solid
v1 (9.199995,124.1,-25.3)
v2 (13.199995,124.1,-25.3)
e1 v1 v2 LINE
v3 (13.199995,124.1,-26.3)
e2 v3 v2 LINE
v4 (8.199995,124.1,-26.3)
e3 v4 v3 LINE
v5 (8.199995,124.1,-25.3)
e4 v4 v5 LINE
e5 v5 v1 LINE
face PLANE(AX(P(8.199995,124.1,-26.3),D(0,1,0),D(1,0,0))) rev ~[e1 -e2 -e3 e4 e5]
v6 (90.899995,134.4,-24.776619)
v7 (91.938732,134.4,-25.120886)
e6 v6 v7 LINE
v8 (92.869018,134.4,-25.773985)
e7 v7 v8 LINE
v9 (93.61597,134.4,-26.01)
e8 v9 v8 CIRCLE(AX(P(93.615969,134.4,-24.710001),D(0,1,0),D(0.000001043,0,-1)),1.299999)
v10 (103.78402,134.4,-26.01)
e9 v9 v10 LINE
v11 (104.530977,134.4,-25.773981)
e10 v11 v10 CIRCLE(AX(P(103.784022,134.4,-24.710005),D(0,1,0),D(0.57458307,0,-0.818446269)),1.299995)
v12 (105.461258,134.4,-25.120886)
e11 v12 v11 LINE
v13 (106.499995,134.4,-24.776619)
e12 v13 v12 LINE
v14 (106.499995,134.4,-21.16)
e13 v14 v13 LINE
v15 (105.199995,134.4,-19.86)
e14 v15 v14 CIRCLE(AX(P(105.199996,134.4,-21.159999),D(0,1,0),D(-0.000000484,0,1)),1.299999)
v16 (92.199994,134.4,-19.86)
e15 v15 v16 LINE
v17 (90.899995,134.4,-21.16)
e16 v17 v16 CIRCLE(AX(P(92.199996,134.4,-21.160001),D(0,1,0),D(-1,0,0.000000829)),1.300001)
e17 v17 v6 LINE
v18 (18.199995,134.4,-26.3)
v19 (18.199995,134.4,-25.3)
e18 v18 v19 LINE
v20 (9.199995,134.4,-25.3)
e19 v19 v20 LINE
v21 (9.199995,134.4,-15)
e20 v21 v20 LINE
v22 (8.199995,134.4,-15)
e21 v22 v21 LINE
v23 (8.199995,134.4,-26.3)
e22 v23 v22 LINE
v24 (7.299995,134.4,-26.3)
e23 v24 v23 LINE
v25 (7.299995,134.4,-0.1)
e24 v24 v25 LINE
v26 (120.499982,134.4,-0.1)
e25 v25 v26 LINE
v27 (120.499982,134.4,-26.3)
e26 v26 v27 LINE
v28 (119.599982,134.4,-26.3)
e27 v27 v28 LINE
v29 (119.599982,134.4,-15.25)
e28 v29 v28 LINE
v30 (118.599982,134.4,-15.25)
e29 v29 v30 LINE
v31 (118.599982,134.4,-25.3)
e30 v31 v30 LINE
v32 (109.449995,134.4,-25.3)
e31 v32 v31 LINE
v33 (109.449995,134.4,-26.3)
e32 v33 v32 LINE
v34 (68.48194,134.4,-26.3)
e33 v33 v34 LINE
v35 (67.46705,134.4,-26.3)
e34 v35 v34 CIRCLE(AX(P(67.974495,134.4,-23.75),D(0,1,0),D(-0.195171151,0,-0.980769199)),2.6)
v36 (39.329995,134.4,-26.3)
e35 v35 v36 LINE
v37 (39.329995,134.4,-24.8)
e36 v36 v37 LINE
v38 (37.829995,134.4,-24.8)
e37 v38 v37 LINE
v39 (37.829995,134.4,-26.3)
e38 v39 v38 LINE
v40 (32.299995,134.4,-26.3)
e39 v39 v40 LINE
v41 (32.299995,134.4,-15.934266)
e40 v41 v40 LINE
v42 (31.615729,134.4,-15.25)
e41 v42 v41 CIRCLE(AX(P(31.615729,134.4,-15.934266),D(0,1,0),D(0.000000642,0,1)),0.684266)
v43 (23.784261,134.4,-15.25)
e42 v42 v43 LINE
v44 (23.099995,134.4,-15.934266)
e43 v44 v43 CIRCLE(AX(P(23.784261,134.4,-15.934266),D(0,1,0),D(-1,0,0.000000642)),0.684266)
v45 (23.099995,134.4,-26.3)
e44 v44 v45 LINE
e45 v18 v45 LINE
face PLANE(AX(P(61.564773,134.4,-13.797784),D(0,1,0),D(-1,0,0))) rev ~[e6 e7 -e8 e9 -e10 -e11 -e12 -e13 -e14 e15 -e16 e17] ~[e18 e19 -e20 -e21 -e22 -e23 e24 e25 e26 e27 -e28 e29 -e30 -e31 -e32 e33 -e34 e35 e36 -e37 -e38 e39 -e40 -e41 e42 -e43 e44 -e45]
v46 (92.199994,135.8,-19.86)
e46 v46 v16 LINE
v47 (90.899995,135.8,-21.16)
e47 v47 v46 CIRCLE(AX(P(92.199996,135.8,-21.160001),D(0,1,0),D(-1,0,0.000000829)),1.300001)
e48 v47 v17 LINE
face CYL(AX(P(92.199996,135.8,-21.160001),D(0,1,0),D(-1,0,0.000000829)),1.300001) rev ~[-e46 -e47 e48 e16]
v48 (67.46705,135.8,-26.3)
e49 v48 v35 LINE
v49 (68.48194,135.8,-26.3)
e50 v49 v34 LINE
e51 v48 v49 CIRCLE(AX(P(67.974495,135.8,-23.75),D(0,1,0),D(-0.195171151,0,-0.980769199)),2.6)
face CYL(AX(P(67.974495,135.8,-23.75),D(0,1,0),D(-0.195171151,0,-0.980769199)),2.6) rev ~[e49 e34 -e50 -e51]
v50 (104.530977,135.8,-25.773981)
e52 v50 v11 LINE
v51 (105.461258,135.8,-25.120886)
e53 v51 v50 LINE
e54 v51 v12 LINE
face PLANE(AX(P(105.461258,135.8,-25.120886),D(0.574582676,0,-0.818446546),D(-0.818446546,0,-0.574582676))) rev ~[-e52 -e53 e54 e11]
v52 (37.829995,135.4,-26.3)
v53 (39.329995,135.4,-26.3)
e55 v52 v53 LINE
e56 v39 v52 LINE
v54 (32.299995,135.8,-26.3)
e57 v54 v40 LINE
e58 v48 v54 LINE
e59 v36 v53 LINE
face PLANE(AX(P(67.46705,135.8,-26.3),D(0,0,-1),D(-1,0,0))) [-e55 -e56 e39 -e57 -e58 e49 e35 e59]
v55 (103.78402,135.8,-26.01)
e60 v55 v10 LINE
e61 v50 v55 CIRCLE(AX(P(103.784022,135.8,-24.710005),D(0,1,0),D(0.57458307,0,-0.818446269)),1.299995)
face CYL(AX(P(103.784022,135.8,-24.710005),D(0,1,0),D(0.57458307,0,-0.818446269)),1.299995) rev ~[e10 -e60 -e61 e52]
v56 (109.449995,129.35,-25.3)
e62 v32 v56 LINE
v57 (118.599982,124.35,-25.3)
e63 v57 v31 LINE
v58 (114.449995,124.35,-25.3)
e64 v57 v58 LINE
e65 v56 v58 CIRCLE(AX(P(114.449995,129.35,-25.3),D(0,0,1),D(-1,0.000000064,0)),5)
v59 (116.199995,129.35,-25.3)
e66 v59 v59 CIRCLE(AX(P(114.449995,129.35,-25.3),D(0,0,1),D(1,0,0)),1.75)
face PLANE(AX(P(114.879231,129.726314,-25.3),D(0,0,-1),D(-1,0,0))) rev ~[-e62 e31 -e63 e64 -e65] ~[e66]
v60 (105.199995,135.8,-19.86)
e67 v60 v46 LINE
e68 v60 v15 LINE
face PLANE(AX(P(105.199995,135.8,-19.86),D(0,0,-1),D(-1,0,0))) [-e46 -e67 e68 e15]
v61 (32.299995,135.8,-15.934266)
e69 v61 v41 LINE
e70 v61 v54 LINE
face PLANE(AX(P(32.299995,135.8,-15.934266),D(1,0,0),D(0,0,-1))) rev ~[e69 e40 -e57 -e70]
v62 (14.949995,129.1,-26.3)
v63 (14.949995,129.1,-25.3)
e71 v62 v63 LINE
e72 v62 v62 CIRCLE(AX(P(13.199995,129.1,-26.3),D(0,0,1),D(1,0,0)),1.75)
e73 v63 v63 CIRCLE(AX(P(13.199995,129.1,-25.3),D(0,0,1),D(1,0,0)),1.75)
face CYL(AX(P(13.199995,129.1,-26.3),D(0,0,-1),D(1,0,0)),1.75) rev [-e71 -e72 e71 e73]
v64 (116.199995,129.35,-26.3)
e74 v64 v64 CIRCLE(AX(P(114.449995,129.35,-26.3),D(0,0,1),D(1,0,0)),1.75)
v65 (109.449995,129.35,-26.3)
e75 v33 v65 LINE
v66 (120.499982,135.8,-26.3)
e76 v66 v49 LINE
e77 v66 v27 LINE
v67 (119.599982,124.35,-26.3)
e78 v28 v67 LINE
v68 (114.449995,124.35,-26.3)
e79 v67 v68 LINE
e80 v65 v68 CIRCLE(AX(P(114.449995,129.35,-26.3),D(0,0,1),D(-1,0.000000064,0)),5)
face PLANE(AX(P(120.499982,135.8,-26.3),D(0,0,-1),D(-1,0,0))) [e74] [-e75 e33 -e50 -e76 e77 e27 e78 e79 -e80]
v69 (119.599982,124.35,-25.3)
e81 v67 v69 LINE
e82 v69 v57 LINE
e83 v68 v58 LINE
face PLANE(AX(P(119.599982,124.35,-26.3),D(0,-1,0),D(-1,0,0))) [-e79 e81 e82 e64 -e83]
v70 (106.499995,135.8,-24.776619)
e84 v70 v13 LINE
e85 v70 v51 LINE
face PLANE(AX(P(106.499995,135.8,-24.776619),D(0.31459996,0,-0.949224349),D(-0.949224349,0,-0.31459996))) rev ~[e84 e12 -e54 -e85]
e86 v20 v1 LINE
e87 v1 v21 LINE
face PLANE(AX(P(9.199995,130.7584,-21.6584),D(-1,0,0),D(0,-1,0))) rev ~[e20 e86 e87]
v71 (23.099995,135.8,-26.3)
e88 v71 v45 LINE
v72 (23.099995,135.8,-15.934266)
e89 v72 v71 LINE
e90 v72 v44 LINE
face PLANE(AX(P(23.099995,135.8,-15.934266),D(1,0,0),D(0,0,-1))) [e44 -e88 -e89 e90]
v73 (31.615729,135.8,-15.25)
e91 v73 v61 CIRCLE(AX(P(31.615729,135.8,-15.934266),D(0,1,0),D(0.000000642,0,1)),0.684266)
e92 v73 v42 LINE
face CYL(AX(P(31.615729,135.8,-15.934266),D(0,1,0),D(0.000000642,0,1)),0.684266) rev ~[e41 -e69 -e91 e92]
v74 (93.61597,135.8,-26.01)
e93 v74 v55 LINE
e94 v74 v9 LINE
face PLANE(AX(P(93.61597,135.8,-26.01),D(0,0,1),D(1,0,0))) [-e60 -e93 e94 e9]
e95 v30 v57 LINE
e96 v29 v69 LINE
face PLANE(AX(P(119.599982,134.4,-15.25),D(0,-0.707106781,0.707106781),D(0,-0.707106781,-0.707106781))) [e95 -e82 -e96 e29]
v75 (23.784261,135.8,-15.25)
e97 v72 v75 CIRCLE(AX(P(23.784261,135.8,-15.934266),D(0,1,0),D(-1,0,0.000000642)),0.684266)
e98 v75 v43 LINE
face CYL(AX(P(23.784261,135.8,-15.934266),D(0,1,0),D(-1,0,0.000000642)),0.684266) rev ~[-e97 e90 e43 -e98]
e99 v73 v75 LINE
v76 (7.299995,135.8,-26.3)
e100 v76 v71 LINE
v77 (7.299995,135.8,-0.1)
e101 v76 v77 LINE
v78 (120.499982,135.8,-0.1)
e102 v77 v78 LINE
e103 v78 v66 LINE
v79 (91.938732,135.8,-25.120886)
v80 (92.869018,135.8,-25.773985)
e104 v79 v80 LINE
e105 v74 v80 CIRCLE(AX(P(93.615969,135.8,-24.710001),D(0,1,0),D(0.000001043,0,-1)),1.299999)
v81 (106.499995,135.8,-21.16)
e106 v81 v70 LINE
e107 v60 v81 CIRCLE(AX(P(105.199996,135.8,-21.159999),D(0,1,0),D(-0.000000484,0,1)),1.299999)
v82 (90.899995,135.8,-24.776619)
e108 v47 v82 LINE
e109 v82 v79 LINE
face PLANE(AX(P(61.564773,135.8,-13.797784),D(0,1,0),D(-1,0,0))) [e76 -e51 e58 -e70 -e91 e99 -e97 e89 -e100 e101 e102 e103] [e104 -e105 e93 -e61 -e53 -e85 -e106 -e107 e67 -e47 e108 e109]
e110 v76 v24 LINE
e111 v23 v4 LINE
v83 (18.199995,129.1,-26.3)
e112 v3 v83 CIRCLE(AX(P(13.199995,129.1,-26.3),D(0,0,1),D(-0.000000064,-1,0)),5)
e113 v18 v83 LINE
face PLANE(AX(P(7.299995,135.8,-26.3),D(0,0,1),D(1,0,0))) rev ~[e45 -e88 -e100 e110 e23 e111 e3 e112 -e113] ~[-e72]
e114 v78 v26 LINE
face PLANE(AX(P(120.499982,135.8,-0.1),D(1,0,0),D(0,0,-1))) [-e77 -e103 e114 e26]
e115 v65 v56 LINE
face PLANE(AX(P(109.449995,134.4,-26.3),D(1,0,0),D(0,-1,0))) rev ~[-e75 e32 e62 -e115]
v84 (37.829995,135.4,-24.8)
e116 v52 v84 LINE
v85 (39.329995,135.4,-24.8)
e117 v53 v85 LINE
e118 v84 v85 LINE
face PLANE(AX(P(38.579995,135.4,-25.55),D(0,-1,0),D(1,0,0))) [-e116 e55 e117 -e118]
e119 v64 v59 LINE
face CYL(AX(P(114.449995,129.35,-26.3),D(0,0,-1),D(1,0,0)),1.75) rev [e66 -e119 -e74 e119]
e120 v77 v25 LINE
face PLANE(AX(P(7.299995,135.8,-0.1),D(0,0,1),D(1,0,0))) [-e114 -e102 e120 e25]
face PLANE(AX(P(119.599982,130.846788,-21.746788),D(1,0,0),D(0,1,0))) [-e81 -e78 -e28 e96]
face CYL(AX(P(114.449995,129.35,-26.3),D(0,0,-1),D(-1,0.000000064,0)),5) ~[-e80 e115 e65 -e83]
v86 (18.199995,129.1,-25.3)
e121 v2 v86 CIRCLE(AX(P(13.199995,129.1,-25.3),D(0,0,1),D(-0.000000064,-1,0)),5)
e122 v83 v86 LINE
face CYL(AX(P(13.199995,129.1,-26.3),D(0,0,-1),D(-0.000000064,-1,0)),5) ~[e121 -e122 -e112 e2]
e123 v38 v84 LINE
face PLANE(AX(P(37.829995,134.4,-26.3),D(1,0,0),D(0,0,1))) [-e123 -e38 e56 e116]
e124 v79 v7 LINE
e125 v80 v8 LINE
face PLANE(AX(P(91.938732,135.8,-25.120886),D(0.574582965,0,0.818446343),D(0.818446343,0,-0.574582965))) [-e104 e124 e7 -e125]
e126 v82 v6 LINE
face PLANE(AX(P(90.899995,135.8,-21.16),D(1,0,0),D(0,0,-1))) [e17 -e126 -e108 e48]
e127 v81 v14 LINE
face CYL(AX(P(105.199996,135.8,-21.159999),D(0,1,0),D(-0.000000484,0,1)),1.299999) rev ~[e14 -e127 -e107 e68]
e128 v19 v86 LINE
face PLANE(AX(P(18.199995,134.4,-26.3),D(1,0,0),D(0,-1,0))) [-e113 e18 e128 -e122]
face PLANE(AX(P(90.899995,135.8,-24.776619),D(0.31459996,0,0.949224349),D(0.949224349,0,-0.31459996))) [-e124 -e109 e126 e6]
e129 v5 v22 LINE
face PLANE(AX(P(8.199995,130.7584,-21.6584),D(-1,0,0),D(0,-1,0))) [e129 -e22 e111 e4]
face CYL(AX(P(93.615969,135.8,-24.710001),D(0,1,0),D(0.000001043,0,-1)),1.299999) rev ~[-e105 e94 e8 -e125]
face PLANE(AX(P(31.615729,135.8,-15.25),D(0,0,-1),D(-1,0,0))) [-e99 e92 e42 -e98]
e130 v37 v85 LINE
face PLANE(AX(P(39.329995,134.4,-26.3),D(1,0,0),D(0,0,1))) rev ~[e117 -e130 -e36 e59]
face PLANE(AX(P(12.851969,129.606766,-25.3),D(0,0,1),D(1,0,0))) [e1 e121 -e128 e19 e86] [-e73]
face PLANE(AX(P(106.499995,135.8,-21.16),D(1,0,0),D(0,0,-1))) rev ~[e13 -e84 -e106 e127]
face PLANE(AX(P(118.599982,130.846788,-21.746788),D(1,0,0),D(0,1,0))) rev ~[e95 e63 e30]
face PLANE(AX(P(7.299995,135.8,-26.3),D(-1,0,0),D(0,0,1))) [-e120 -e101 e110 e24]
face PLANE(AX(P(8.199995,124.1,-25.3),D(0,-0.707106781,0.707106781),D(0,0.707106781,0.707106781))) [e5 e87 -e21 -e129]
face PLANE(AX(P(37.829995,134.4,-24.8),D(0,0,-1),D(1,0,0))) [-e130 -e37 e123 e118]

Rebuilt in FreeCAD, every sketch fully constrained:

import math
import FreeCAD as App
import Part
import Sketcher

doc = App.newDocument("Part")
body = doc.addObject("PartDesign::Body", "Body")

sketch1 = doc.addObject("Sketcher::SketchObject", "Sketch")
body.addObject(sketch1)
sketch1.AttachmentSupport = (doc.XZ_Plane, [""])
sketch1.MapMode = "FlatFace"
sketch1.AttachmentOffset = App.Placement(App.Vector(0, 0, -135.8), App.Rotation())
sketch1.addGeometry([
    Part.LineSegment(App.Vector(120.5, -0.1, 0), App.Vector(120.5, -26.3, 0)),
    Part.LineSegment(App.Vector(120.5, -26.3, 0), App.Vector(68.5, -26.3, 0)),
    Part.ArcOfCircle(Part.Circle(App.Vector(68, -23.8, 0), App.Vector(0, 0, 1), 2.6), math.radians(-79), math.radians(259)),
    Part.LineSegment(App.Vector(67.5, -26.3, 0), App.Vector(32.3, -26.3, 0)),
    Part.LineSegment(App.Vector(32.3, -26.3, 0), App.Vector(32.3, -15.9, 0)),
    Part.ArcOfCircle(Part.Circle(App.Vector(31.6, -15.9, 0), App.Vector(0, 0, 1), 0.7), math.radians(0), math.radians(90)),
    Part.LineSegment(App.Vector(31.6, -15.2, 0), App.Vector(23.8, -15.2, 0)),
    Part.ArcOfCircle(Part.Circle(App.Vector(23.8, -15.9, 0), App.Vector(0, 0, 1), 0.7), math.radians(90), math.radians(180)),
    Part.LineSegment(App.Vector(23.1, -15.9, 0), App.Vector(23.1, -26.3, 0)),
    Part.LineSegment(App.Vector(23.1, -26.3, 0), App.Vector(7.3, -26.3, 0)),
    Part.LineSegment(App.Vector(7.3, -26.3, 0), App.Vector(7.3, -0.1, 0)),
    Part.LineSegment(App.Vector(7.3, -0.1, 0), App.Vector(120.5, -0.1, 0)),
    Part.ArcOfCircle(Part.Circle(App.Vector(105.2, -21.2, 0), App.Vector(0, 0, 1), 1.3), math.radians(0), math.radians(90)),
    Part.LineSegment(App.Vector(105.2, -19.9, 0), App.Vector(92.2, -19.9, 0)),
    Part.ArcOfCircle(Part.Circle(App.Vector(92.2, -21.2, 0), App.Vector(0, 0, 1), 1.3), math.radians(90), math.radians(180)),
    Part.LineSegment(App.Vector(90.9, -21.2, 0), App.Vector(90.9, -24.8, 0)),
    Part.LineSegment(App.Vector(90.9, -24.8, 0), App.Vector(91.9, -25.1, 0)),
    Part.LineSegment(App.Vector(91.9, -25.1, 0), App.Vector(92.9, -25.8, 0)),
    Part.ArcOfCircle(Part.Circle(App.Vector(93.6, -24.7, 0), App.Vector(0, 0, 1), 1.3), math.radians(-125), math.radians(-90)),
    Part.LineSegment(App.Vector(93.6, -26, 0), App.Vector(103.8, -26, 0)),
    Part.ArcOfCircle(Part.Circle(App.Vector(103.8, -24.7, 0), App.Vector(0, 0, 1), 1.3), math.radians(-90), math.radians(-55)),
    Part.LineSegment(App.Vector(104.5, -25.8, 0), App.Vector(105.5, -25.1, 0)),
    Part.LineSegment(App.Vector(105.5, -25.1, 0), App.Vector(106.5, -24.8, 0)),
    Part.LineSegment(App.Vector(106.5, -24.8, 0), App.Vector(106.5, -21.2, 0)),
], False)
sketch1.addConstraint([
    Sketcher.Constraint("Coincident", 0, 2, 1, 1),
    Sketcher.Constraint("Coincident", 1, 2, 2, 1),
    Sketcher.Constraint("Coincident", 2, 2, 3, 1),
    Sketcher.Constraint("Coincident", 3, 2, 4, 1),
    Sketcher.Constraint("Tangent", 4, 2, 5, 1),
    Sketcher.Constraint("Tangent", 5, 2, 6, 1),
    Sketcher.Constraint("Tangent", 6, 2, 7, 1),
    Sketcher.Constraint("Tangent", 7, 2, 8, 1),
    Sketcher.Constraint("Coincident", 8, 2, 9, 1),
    Sketcher.Constraint("Coincident", 9, 2, 10, 1),
    Sketcher.Constraint("Coincident", 10, 2, 11, 1),
    Sketcher.Constraint("Coincident", 11, 2, 0, 1),
    Sketcher.Constraint("Tangent", 12, 2, 13, 1),
    Sketcher.Constraint("Tangent", 13, 2, 14, 1),
    Sketcher.Constraint("Tangent", 14, 2, 15, 1),
    Sketcher.Constraint("Coincident", 15, 2, 16, 1),
    Sketcher.Constraint("Coincident", 16, 2, 17, 1),
    Sketcher.Constraint("Coincident", 17, 2, 18, 1),
    Sketcher.Constraint("Tangent", 18, 2, 19, 1),
    Sketcher.Constraint("Tangent", 19, 2, 20, 1),
    Sketcher.Constraint("Tangent", 20, 2, 21, 1),
    Sketcher.Constraint("Coincident", 21, 2, 22, 1),
    Sketcher.Constraint("Coincident", 22, 2, 23, 1),
    Sketcher.Constraint("Tangent", 23, 2, 12, 1),
    Sketcher.Constraint("Vertical", 0),
    Sketcher.Constraint("Horizontal", 1),
    Sketcher.Constraint("Horizontal", 3),
    Sketcher.Constraint("Vertical", 4),
    Sketcher.Constraint("Horizontal", 6),
    Sketcher.Constraint("Vertical", 8),
    Sketcher.Constraint("Horizontal", 9),
    Sketcher.Constraint("Vertical", 10),
    Sketcher.Constraint("Horizontal", 11),
    Sketcher.Constraint("Horizontal", 13),
    Sketcher.Constraint("Vertical", 15),
    Sketcher.Constraint("Horizontal", 19),
    Sketcher.Constraint("Vertical", 23),
    Sketcher.Constraint("Equal", 5, 7),
    Sketcher.Constraint("Equal", 12, 14),
    Sketcher.Constraint("Equal", 12, 18),
    Sketcher.Constraint("Horizontal", 1, 2, 2, 2),
    Sketcher.Constraint("Horizontal", 3, 2, 8, 2),
    Sketcher.Constraint("Horizontal", 16, 2, 21, 2),
    Sketcher.Constraint("Horizontal", 15, 2, 22, 2),
    Sketcher.Constraint("Equal", 16, 22),
    Sketcher.Constraint("Radius", 2, 2.6),
    Sketcher.Constraint("Radius", 12, 1.299999),
    Sketcher.Constraint("DistanceX", 13, 2, 13, 1, 13.000001),
    Sketcher.Constraint("DistanceX", 9, 2, 9, 1, 15.8),
    Sketcher.Constraint("DistanceY", 0, 2, 0, 1, 26.2),
    Sketcher.Constraint("DistanceX", 9, 2, 3, 2, 25.0),
    Sketcher.Constraint("DistanceY", 0, 2, -1, 1, 26.3),
    Sketcher.Constraint("DistanceY", 2, 3, 5, 2, 8.5),
    Sketcher.Constraint("DistanceY", 2, 3, -1, 1, 23.75),
    Sketcher.Constraint("DistanceY", 12, 3, -1, 1, 21.159999),
    Sketcher.Constraint("DistanceY", 18, 3, -1, 1, 24.710001),
    Sketcher.Constraint("Radius", 5, 0.684266),
    Sketcher.Constraint("Radius", 20, 1.299995),
    Sketcher.Constraint("Distance", 16, 1.094301),
    Sketcher.Constraint("DistanceX", 19, 1, 19, 2, 10.16805),
    Sketcher.Constraint("DistanceY", 15, 2, 15, 1, 3.616619),
    Sketcher.Constraint("DistanceX", 2, 3, 12, 3, 37.225501),
    Sketcher.Constraint("DistanceX", 3, 2, 2, 3, 35.6745),
    Sketcher.Constraint("DistanceY", 17, 2, 16, 2, 0.653099),
    Sketcher.Constraint("Distance", 17, 1.136649),
    Sketcher.Constraint("DistanceX", 1, 2, 1, 1, 52.018042),
    Sketcher.Constraint("DistanceX", -1, 1, 5, 3, 31.615729),
    Sketcher.Constraint("DistanceX", -1, 1, 18, 3, 93.615969),
])
pad1 = doc.addObject("PartDesign::Pad", "Pad")
body.addObject(pad1)
pad1.Profile = sketch1
pad1.Length = 1.4

sketch2 = doc.addObject("Sketcher::SketchObject", "Sketch001")
body.addObject(sketch2)
sketch2.AttachmentSupport = (doc.XY_Plane, [""])
sketch2.MapMode = "FlatFace"
sketch2.AttachmentOffset = App.Placement(App.Vector(0, 0, -26.3), App.Rotation())
sketch2.addGeometry([
    Part.LineSegment(App.Vector(18.2, 134.4, 0), App.Vector(8.2, 134.4, 0)),
    Part.LineSegment(App.Vector(8.2, 134.4, 0), App.Vector(8.2, 124.1, 0)),
    Part.LineSegment(App.Vector(8.2, 124.1, 0), App.Vector(13.2, 124.1, 0)),
    Part.ArcOfCircle(Part.Circle(App.Vector(13.2, 129.1, 0), App.Vector(0, 0, 1), 5), math.radians(-90), math.radians(0)),
    Part.LineSegment(App.Vector(18.2, 129.1, 0), App.Vector(18.2, 134.4, 0)),
    Part.Circle(App.Vector(13.2, 129.1, 0), App.Vector(0, 0, 1), 1.8),
    Part.LineSegment(App.Vector(119.6, 134.4, 0), App.Vector(109.4, 134.4, 0)),
    Part.LineSegment(App.Vector(109.4, 134.4, 0), App.Vector(109.4, 129.3, 0)),
    Part.ArcOfCircle(Part.Circle(App.Vector(114.4, 129.3, 0), App.Vector(0, 0, 1), 5), math.radians(180), math.radians(270)),
    Part.LineSegment(App.Vector(114.4, 124.3, 0), App.Vector(119.6, 124.3, 0)),
    Part.LineSegment(App.Vector(119.6, 124.3, 0), App.Vector(119.6, 134.4, 0)),
    Part.Circle(App.Vector(114.4, 129.3, 0), App.Vector(0, 0, 1), 1.8),
], False)
sketch2.addConstraint([
    Sketcher.Constraint("Coincident", 0, 2, 1, 1),
    Sketcher.Constraint("Coincident", 1, 2, 2, 1),
    Sketcher.Constraint("Tangent", 2, 2, 3, 1),
    Sketcher.Constraint("Tangent", 3, 2, 4, 1),
    Sketcher.Constraint("Coincident", 4, 2, 0, 1),
    Sketcher.Constraint("Coincident", 6, 2, 7, 1),
    Sketcher.Constraint("Tangent", 7, 2, 8, 1),
    Sketcher.Constraint("Tangent", 8, 2, 9, 1),
    Sketcher.Constraint("Coincident", 9, 2, 10, 1),
    Sketcher.Constraint("Coincident", 10, 2, 6, 1),
    Sketcher.Constraint("Horizontal", 0),
    Sketcher.Constraint("Vertical", 1),
    Sketcher.Constraint("Horizontal", 2),
    Sketcher.Constraint("Vertical", 4),
    Sketcher.Constraint("Horizontal", 6),
    Sketcher.Constraint("Vertical", 7),
    Sketcher.Constraint("Horizontal", 9),
    Sketcher.Constraint("Vertical", 10),
    Sketcher.Constraint("Coincident", 5, 3, 3, 3),
    Sketcher.Constraint("Coincident", 11, 3, 8, 3),
    Sketcher.Constraint("Equal", 3, 8),
    Sketcher.Constraint("Equal", 5, 11),
    Sketcher.Constraint("Horizontal", 4, 2, 6, 2),
    Sketcher.Constraint("Radius", 3, 5.0),
    Sketcher.Constraint("Diameter", 5, 3.5),
    Sketcher.Constraint("DistanceX", 0, 2, 0, 1, 10.0),
    Sketcher.Constraint("DistanceY", 1, 2, 1, 1, 10.3),
    Sketcher.Constraint("DistanceY", 7, 2, 7, 1, 5.05),
    Sketcher.Constraint("DistanceY", -1, 1, 3, 3, 129.1),
    Sketcher.Constraint("DistanceX", 3, 3, 8, 3, 101.249999),
    Sketcher.Constraint("DistanceX", 6, 2, 6, 1, 10.149987),
    Sketcher.Constraint("DistanceX", -1, 1, 9, 2, 119.599982),
])
pad2 = doc.addObject("PartDesign::Pad", "Pad001")
body.addObject(pad2)
pad2.Profile = sketch2
pad2.Length = 1

sketch3 = doc.addObject("Sketcher::SketchObject", "Sketch002")
body.addObject(sketch3)
sketch3.AttachmentSupport = (doc.YZ_Plane, [""])
sketch3.MapMode = "FlatFace"
sketch3.AttachmentOffset = App.Placement(App.Vector(0, 0, 8.199995), App.Rotation())
sketch3.addGeometry([
    Part.LineSegment(App.Vector(134, -25, 0), App.Vector(124, -25, 0)),
    Part.LineSegment(App.Vector(124, -25, 0), App.Vector(134, -15, 0)),
    Part.LineSegment(App.Vector(134, -15, 0), App.Vector(134, -25, 0)),
], False)
sketch3.addConstraint([
    Sketcher.Constraint("Coincident", 0, 2, 1, 1),
    Sketcher.Constraint("Coincident", 1, 2, 2, 1),
    Sketcher.Constraint("Coincident", 2, 2, 0, 1),
    Sketcher.Constraint("Horizontal", 0),
    Sketcher.Constraint("Vertical", 2),
    Sketcher.Constraint("Equal", 0, 2),
    Sketcher.Constraint("DistanceX", 0, 2, 0, 1, 10.3),
    Sketcher.Constraint("DistanceY", 1, 2, -1, 1, 15.0),
    Sketcher.Constraint("DistanceX", -1, 1, 0, 2, 124.1),
])
pad3 = doc.addObject("PartDesign::Pad", "Pad002")
body.addObject(pad3)
pad3.Profile = sketch3
pad3.Length = 1

sketch4 = doc.addObject("Sketcher::SketchObject", "Sketch003")
body.addObject(sketch4)
sketch4.AttachmentSupport = (doc.YZ_Plane, [""])
sketch4.MapMode = "FlatFace"
sketch4.AttachmentOffset = App.Placement(App.Vector(0, 0, 119.599982), App.Rotation())
sketch4.addGeometry([
    Part.LineSegment(App.Vector(124, -25, 0), App.Vector(134, -25, 0)),
    Part.LineSegment(App.Vector(134, -25, 0), App.Vector(134, -15, 0)),
    Part.LineSegment(App.Vector(134, -15, 0), App.Vector(124, -25, 0)),
], False)
sketch4.addConstraint([
    Sketcher.Constraint("Coincident", 0, 2, 1, 1),
    Sketcher.Constraint("Coincident", 1, 2, 2, 1),
    Sketcher.Constraint("Coincident", 2, 2, 0, 1),
    Sketcher.Constraint("Horizontal", 0),
    Sketcher.Constraint("Vertical", 1),
    Sketcher.Constraint("Equal", 0, 1),
    Sketcher.Constraint("DistanceX", 0, 1, 0, 2, 10.05),
    Sketcher.Constraint("DistanceX", -1, 1, 0, 2, 134.4),
    Sketcher.Constraint("DistanceY", 0, 2, -1, 1, 25.3),
])
pad4 = doc.addObject("PartDesign::Pad", "Pad003")
body.addObject(pad4)
pad4.Profile = sketch4
pad4.Length = 1
pad4.Reversed = True

sketch5 = doc.addObject("Sketcher::SketchObject", "Sketch004")
body.addObject(sketch5)
sketch5.AttachmentSupport = (doc.XZ_Plane, [""])
sketch5.MapMode = "FlatFace"
sketch5.AttachmentOffset = App.Placement(App.Vector(0, 0, -134.4), App.Rotation())
sketch5.addGeometry([
    Part.LineSegment(App.Vector(37.8, -24.8, 0), App.Vector(37.8, -26.3, 0)),
    Part.LineSegment(App.Vector(37.8, -26.3, 0), App.Vector(39.3, -26.3, 0)),
    Part.LineSegment(App.Vector(39.3, -26.3, 0), App.Vector(39.3, -24.8, 0)),
    Part.LineSegment(App.Vector(39.3, -24.8, 0), App.Vector(37.8, -24.8, 0)),
], False)
sketch5.addConstraint([
    Sketcher.Constraint("Coincident", 0, 2, 1, 1),
    Sketcher.Constraint("Coincident", 1, 2, 2, 1),
    Sketcher.Constraint("Coincident", 2, 2, 3, 1),
    Sketcher.Constraint("Coincident", 3, 2, 0, 1),
    Sketcher.Constraint("Vertical", 0),
    Sketcher.Constraint("Horizontal", 1),
    Sketcher.Constraint("Vertical", 2),
    Sketcher.Constraint("Horizontal", 3),
    Sketcher.Constraint("Equal", 3, 0),
    Sketcher.Constraint("DistanceX", 1, 1, 1, 2, 1.5),
    Sketcher.Constraint("DistanceY", 0, 2, -1, 1, 26.3),
    Sketcher.Constraint("DistanceX", -1, 1, 0, 2, 37.829995),
])
pocket1 = doc.addObject("PartDesign::Pocket", "Pocket")
body.addObject(pocket1)
pocket1.Profile = sketch5
pocket1.Length = 1

doc.recompute()
